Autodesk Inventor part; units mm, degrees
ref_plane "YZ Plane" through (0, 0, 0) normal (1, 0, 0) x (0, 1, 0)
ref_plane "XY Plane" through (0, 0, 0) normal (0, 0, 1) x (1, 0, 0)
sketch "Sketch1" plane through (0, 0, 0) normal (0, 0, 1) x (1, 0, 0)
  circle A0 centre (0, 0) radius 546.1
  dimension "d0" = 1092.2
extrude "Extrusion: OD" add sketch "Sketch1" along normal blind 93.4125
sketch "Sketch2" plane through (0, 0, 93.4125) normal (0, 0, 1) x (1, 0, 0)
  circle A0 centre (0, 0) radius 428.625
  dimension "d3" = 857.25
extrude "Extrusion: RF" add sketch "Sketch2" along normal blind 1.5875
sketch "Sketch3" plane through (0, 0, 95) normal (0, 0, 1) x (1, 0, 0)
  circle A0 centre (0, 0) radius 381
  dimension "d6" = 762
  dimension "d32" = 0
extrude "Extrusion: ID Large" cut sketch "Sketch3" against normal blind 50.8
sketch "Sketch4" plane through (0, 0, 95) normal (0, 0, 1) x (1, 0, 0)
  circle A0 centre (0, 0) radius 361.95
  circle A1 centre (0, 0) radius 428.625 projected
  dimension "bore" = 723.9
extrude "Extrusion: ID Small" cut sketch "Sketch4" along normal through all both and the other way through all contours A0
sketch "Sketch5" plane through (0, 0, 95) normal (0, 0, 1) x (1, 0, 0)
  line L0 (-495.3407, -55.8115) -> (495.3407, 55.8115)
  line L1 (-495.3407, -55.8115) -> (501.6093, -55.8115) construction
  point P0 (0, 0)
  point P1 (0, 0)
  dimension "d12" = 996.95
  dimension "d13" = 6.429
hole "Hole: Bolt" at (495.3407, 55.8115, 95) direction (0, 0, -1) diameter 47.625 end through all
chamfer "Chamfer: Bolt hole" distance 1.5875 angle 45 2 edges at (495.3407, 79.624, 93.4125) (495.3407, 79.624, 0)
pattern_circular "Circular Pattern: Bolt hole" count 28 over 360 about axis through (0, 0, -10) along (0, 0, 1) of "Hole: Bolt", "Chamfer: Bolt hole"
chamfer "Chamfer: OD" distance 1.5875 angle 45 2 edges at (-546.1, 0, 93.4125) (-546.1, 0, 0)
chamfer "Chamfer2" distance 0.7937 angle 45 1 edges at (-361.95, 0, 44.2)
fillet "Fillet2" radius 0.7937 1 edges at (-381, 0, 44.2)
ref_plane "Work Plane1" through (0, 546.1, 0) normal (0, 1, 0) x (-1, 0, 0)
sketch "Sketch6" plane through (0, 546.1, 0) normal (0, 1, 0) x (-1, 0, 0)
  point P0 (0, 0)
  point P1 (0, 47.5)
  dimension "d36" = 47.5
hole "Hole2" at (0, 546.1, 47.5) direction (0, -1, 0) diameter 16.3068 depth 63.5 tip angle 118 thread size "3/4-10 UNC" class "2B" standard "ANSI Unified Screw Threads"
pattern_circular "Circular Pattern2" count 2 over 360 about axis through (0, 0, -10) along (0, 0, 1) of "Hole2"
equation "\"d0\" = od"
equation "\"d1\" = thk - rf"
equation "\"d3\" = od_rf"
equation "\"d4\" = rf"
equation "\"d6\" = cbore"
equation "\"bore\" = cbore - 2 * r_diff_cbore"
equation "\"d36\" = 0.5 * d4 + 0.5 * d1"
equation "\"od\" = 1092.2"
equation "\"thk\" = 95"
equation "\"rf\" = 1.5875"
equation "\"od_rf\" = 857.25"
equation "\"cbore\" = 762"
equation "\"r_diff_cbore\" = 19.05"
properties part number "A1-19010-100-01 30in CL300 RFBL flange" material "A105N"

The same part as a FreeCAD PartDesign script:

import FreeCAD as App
import Part
import Sketcher
from FreeCAD import Vector
Q = App.Units.Quantity


def edges_at(feature, points):
    """Names of the edges that pass closest to the given points."""
    edges = feature.Shape.Edges
    near = lambda p: min(range(len(edges)), key=lambda i: edges[i].distToShape(Part.Vertex(*p))[0])
    return sorted({f"Edge{near(p) + 1}" for p in points})

doc = App.newDocument("Part")
body = doc.addObject("PartDesign::Body", "Body")

sketch1 = doc.addObject("Sketcher::SketchObject", "Sketch")
body.addObject(sketch1)
sketch1.AttachmentSupport = (doc.XY_Plane, [""])
sketch1.MapMode = "FlatFace"
sketch1.addGeometry(Part.Circle(Vector(0, 0, 0), Vector(0, 0, 1), 546), False)
sketch1.addConstraint(Sketcher.Constraint("Coincident", 0, 3, -1, 1))
sketch1.addConstraint(Sketcher.Constraint("Diameter", 0, Q("43 in")))
pad1 = doc.addObject("PartDesign::Pad", "Pad")
body.addObject(pad1)
pad1.Profile = sketch1
pad1.Length = 93.4125

sketch2 = doc.addObject("Sketcher::SketchObject", "Sketch001")
body.addObject(sketch2)
sketch2.AttachmentSupport = (doc.XY_Plane, [""])
sketch2.MapMode = "FlatFace"
sketch2.AttachmentOffset = App.Placement(Vector(0, 0, 93.4125), App.Rotation())
sketch2.addGeometry(Part.Circle(Vector(0, 0, 0), Vector(0, 0, 1), 429), False)
sketch2.addConstraint(Sketcher.Constraint("Coincident", 0, 3, -1, 1))
sketch2.addConstraint(Sketcher.Constraint("Diameter", 0, Q("33.75 in")))
pad2 = doc.addObject("PartDesign::Pad", "Pad001")
body.addObject(pad2)
pad2.Profile = sketch2
pad2.Length = Q("0.0625 in")

sketch3 = doc.addObject("Sketcher::SketchObject", "Sketch002")
body.addObject(sketch3)
sketch3.AttachmentSupport = (doc.XY_Plane, [""])
sketch3.MapMode = "FlatFace"
sketch3.AttachmentOffset = App.Placement(Vector(0, 0, 95), App.Rotation())
sketch3.addGeometry(Part.Circle(Vector(0, 0, 0), Vector(0, 0, 1), 381), False)
sketch3.addConstraint(Sketcher.Constraint("Coincident", 0, 3, -1, 1))
sketch3.addConstraint(Sketcher.Constraint("Diameter", 0, Q("30 in")))
pocket1 = doc.addObject("PartDesign::Pocket", "Pocket")
body.addObject(pocket1)
pocket1.Profile = sketch3
pocket1.Length = Q("2 in")

sketch4 = doc.addObject("Sketcher::SketchObject", "Sketch003")
body.addObject(sketch4)
sketch4.AttachmentSupport = (doc.XY_Plane, [""])
sketch4.MapMode = "FlatFace"
sketch4.AttachmentOffset = App.Placement(Vector(0, 0, 95), App.Rotation())
sketch4.addGeometry(Part.Circle(Vector(0, 0, 0), Vector(0, 0, 1), 362), False)
sketch4.addConstraint(Sketcher.Constraint("Coincident", 0, 3, -1, 1))
sketch4.addConstraint(Sketcher.Constraint("Diameter", 0, Q("28.5 in")))
pocket2 = doc.addObject("PartDesign::Pocket", "Pocket001")
body.addObject(pocket2)
pocket2.Profile = sketch4
pocket2.Type = "ThroughAll"
pocket2.Midplane = True

sketch5 = doc.addObject("Sketcher::SketchObject", "Sketch004")
body.addObject(sketch5)
sketch5.AttachmentSupport = (doc.XY_Plane, [""])
sketch5.MapMode = "FlatFace"
sketch5.AttachmentOffset = App.Placement(Vector(0, 0, 95), App.Rotation())
sketch5.addGeometry(Part.Circle(Vector(495, 56, 0), Vector(0, 0, 1), 24), False)
sketch5.addConstraint(Sketcher.Constraint("Diameter", 0, Q("1.875 in")))
sketch5.addConstraint(Sketcher.Constraint("DistanceX", -1, 1, 0, 3, Q("19.5016 in")))
sketch5.addConstraint(Sketcher.Constraint("DistanceY", -1, 1, 0, 3, Q("2.1973 in")))
doc.recompute()
hole = doc.addObject("PartDesign::Hole", "Hole")
body.addObject(hole)
hole.Profile = sketch5
hole.ThreadType = "None"
hole.Diameter = Q("1.875 in")
hole.DepthType = "ThroughAll"
doc.recompute()

chamfer = doc.addObject("PartDesign::Chamfer", "Chamfer")
body.addObject(chamfer)
chamfer.Base = (hole, edges_at(hole, [(495.341, 79.624, 93.412), (495.341, 79.624, 0)]))
chamfer.Size = Q("0.0625 in")
doc.recompute()

polarpattern = doc.addObject("PartDesign::PolarPattern", "PolarPattern")
body.addObject(polarpattern)
polarpattern.Originals = [hole, chamfer]
polarpattern.Axis = (doc.Z_Axis, [""])
polarpattern.Angle = 360
polarpattern.Occurrences = 28
body.Tip = polarpattern
doc.recompute()

chamfer2 = doc.addObject("PartDesign::Chamfer", "Chamfer001")
body.addObject(chamfer2)
chamfer2.Base = (polarpattern, edges_at(polarpattern, [(-546.1, 0, 93.412), (-546.1, 0, 0)]))
chamfer2.Size = Q("0.0625 in")
doc.recompute()

chamfer3 = doc.addObject("PartDesign::Chamfer", "Chamfer002")
body.addObject(chamfer3)
chamfer3.Base = (chamfer2, edges_at(chamfer2, [(-361.95, 0, 44.2)]))
chamfer3.Size = Q("0.031248 in")
doc.recompute()

fillet = doc.addObject("PartDesign::Fillet", "Fillet")
body.addObject(fillet)
fillet.Base = (chamfer3, edges_at(chamfer3, [(-381, 0, 44.2)]))
fillet.Radius = Q("0.031248 in")

sketch6 = doc.addObject("Sketcher::SketchObject", "Sketch005")
body.addObject(sketch6)
sketch6.AttachmentSupport = (doc.XZ_Plane, [""])
sketch6.MapMode = "FlatFace"
sketch6.AttachmentOffset = App.Placement(Vector(0, 0, -21.5 * 25.4), App.Rotation())
sketch6.addGeometry(Part.Circle(Vector(0, 48, 0), Vector(0, 0, 1), 8), False)
sketch6.addConstraint(Sketcher.Constraint("PointOnObject", 0, 3, -2))
sketch6.addConstraint(Sketcher.Constraint("Diameter", 0, Q("0.642 in")))
sketch6.addConstraint(Sketcher.Constraint("DistanceY", -1, 1, 0, 3, 47.5))
doc.recompute()
hole2 = doc.addObject("PartDesign::Hole", "Hole001")
body.addObject(hole2)
hole2.Profile = sketch6
hole2.ThreadType = "None"
hole2.Diameter = Q("0.642 in")
hole2.DepthType = "Dimension"
hole2.Depth = Q("2.5 in")
hole2.DrillPoint = "Angled"
hole2.DrillPointAngle = 118
hole2.Reversed = True
doc.recompute()

polarpattern2 = doc.addObject("PartDesign::PolarPattern", "PolarPattern001")
body.addObject(polarpattern2)
polarpattern2.Originals = [hole2]
polarpattern2.Axis = (doc.Z_Axis, [""])
polarpattern2.Angle = 360
polarpattern2.Occurrences = 2
body.Tip = polarpattern2

doc.recompute()
